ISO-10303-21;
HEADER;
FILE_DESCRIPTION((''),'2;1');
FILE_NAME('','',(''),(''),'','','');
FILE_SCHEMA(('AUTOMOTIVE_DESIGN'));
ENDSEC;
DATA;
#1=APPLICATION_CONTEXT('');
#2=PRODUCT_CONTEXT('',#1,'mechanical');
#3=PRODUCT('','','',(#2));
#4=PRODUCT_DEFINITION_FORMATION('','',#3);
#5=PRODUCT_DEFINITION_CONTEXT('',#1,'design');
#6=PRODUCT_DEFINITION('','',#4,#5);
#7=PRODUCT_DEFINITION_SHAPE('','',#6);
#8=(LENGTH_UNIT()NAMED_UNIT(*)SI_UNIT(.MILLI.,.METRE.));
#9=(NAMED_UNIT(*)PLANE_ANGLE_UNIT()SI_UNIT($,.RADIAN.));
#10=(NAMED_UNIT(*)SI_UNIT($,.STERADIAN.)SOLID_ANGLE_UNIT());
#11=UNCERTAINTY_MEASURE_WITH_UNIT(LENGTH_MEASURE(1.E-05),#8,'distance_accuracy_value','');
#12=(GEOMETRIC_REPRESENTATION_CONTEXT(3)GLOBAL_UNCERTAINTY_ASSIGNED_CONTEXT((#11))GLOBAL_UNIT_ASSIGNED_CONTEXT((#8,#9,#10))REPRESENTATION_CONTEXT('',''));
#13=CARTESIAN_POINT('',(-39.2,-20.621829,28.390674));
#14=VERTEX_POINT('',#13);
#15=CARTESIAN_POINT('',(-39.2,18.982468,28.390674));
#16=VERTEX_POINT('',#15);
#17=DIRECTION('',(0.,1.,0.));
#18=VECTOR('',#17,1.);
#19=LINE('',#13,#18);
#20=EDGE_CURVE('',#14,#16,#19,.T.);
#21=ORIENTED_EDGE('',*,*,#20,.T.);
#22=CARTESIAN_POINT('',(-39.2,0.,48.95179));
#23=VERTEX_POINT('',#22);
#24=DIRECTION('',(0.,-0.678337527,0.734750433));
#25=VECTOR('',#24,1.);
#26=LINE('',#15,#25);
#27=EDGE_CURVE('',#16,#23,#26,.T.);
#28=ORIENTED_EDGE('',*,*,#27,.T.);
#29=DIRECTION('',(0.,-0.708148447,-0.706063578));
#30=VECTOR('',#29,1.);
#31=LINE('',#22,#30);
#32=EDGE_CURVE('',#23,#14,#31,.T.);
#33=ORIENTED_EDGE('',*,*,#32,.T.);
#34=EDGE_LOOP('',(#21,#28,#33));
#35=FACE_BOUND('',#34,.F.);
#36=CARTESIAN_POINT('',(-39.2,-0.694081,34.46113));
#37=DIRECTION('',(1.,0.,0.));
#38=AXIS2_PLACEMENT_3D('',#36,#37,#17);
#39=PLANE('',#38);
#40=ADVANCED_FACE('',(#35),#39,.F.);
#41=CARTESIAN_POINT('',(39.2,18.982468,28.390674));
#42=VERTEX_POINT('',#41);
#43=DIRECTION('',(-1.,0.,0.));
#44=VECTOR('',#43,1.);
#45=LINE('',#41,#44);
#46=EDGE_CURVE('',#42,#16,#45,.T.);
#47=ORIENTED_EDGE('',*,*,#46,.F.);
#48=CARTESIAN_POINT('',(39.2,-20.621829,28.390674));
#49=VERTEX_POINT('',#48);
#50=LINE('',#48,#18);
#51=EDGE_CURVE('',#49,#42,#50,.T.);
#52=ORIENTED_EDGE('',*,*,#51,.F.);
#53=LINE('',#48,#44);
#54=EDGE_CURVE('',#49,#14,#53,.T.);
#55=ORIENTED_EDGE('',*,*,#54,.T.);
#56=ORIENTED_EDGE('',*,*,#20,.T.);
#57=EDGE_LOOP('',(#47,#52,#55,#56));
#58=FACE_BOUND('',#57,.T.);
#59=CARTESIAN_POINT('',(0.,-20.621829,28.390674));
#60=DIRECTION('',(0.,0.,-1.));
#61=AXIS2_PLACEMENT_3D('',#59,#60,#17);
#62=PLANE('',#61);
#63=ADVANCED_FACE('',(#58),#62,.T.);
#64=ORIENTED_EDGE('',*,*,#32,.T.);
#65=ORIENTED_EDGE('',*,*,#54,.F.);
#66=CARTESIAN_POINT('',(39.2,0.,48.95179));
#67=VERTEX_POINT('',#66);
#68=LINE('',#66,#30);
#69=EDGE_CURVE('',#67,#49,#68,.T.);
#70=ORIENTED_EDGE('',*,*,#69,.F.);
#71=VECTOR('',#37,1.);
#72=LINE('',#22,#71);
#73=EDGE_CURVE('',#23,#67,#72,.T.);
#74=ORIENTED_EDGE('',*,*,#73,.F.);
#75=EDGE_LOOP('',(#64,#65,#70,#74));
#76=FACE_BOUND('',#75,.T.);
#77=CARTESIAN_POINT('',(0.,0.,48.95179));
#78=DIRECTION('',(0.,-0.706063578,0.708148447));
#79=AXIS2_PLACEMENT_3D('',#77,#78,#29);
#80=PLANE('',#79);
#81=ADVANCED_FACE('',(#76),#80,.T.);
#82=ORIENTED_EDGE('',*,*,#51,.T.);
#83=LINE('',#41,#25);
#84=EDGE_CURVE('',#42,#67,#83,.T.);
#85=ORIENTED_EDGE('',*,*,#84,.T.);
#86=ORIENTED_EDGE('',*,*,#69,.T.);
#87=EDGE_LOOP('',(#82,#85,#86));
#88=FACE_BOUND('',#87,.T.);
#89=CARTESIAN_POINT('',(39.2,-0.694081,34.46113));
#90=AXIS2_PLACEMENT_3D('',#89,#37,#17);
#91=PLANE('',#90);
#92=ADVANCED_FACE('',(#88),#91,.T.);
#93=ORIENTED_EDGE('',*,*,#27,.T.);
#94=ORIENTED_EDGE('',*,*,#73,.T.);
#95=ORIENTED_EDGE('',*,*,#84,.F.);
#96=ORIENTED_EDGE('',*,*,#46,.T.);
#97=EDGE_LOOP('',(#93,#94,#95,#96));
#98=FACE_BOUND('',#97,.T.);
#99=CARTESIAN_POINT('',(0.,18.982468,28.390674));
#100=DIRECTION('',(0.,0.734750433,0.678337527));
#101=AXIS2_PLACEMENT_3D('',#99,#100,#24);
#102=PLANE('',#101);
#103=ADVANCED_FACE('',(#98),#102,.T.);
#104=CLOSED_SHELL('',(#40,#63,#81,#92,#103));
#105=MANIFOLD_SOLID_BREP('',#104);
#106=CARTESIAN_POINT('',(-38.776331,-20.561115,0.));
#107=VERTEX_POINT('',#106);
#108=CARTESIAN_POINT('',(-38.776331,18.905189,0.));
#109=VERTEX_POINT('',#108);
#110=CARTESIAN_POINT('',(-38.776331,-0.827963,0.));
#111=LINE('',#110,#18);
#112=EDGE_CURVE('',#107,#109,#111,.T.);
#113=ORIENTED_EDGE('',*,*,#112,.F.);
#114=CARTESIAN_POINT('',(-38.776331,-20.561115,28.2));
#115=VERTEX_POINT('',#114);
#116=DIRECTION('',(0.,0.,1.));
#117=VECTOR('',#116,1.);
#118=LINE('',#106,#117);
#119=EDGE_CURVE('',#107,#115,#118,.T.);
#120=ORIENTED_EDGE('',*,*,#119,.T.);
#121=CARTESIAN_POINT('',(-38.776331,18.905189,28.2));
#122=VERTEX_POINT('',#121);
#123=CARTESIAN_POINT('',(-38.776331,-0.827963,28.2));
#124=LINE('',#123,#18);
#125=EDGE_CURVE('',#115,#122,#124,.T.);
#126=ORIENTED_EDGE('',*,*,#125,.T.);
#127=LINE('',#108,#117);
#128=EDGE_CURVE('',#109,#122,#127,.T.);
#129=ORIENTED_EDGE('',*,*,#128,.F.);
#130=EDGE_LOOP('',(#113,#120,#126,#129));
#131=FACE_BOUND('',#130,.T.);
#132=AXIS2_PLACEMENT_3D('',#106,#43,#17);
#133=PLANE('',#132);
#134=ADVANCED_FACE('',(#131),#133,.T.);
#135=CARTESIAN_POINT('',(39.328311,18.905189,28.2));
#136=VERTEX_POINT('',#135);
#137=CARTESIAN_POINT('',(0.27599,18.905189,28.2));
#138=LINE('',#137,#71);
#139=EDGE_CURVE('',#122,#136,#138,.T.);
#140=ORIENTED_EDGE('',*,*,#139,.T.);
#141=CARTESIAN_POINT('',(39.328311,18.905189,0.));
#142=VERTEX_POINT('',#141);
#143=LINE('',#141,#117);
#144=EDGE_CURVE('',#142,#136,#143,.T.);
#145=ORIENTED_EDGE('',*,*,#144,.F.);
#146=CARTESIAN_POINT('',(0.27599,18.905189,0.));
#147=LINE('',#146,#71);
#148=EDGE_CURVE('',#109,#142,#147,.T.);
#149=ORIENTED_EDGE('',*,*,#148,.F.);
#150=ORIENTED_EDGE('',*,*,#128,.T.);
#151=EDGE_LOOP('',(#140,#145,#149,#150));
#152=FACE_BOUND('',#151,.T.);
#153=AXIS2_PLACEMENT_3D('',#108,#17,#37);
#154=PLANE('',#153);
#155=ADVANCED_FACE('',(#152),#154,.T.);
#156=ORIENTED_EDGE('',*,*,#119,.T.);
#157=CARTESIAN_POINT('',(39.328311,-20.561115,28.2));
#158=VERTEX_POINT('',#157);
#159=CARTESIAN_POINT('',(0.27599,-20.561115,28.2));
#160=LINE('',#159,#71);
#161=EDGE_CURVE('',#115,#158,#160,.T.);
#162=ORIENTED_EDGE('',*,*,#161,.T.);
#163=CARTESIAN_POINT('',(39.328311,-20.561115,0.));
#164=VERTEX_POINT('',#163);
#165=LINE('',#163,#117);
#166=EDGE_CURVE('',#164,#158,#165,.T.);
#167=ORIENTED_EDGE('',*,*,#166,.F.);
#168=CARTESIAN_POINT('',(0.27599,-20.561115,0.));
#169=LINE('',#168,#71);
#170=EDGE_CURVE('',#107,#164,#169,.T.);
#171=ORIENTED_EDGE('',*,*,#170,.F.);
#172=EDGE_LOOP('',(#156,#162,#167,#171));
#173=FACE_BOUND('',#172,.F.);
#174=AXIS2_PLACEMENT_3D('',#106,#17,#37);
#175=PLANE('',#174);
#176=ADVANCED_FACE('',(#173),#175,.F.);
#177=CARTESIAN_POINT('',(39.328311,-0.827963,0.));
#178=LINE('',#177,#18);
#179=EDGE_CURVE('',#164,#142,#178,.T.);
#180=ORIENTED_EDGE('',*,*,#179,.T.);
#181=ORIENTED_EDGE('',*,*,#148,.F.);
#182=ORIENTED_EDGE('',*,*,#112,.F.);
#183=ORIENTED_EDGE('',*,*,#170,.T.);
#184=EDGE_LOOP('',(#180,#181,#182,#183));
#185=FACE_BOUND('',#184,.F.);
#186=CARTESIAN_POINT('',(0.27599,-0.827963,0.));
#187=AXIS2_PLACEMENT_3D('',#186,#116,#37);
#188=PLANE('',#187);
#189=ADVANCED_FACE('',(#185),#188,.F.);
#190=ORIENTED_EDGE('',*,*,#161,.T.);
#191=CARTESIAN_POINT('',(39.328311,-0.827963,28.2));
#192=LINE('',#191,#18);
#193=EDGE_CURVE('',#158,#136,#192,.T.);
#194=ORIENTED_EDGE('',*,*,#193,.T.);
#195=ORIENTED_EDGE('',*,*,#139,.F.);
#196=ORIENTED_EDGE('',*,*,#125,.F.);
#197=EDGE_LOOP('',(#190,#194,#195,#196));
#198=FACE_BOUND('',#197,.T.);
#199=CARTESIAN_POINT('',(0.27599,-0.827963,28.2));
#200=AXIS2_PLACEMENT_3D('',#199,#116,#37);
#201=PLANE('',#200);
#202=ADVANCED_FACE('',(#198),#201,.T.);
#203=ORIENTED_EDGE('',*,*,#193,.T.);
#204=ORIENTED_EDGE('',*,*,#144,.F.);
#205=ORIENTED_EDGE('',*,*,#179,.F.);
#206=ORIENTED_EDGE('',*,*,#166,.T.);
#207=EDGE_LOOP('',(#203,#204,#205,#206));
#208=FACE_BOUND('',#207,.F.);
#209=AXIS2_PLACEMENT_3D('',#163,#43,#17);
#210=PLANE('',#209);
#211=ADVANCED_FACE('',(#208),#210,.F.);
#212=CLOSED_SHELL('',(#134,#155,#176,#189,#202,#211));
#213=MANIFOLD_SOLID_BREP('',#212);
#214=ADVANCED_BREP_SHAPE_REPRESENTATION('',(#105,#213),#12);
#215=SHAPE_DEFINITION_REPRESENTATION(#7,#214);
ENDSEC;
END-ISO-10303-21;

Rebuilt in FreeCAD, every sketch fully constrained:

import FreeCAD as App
import Part
import Sketcher

doc = App.newDocument("Part")
params = doc.addObject("Spreadsheet::Sheet", "Params")
for row, (alias, value) in enumerate([
    ("pad1_length", "28.2 mm"),
    ("pad2_length", "78.4 mm"),
], start=1):
    params.set(f"A{row}", alias)
    params.set(f"B{row}", "=" + value)
    params.setAlias(f"B{row}", alias)

body = doc.addObject("PartDesign::Body", "Body")

# Sketch on XY plane
sketch1 = body.newObject("Sketcher::SketchObject", "Sketch")
sketch1.AttachmentSupport = (doc.getObject("XY_Plane"), [""])
sketch1.MapMode = "FlatFace"
sketch1.addGeometry([
    Part.LineSegment(App.Vector(-39, 19, 0), App.Vector(-39, -21, 0)),
    Part.LineSegment(App.Vector(-39, -21, 0), App.Vector(39, -21, 0)),
    Part.LineSegment(App.Vector(39, -21, 0), App.Vector(39, 19, 0)),
    Part.LineSegment(App.Vector(39, 19, 0), App.Vector(-39, 19, 0)),
], False)
sketch1.addConstraint([
    Sketcher.Constraint("Coincident", 0, 2, 1, 1),
    Sketcher.Constraint("Coincident", 1, 2, 2, 1),
    Sketcher.Constraint("Coincident", 2, 2, 3, 1),
    Sketcher.Constraint("Coincident", 3, 2, 0, 1),
    Sketcher.Constraint("Vertical", 0),
    Sketcher.Constraint("Horizontal", 1),
    Sketcher.Constraint("Vertical", 2),
    Sketcher.Constraint("Horizontal", 3),
    Sketcher.Constraint("DistanceX", 1, 1, 1, 2, 78.104642),
    Sketcher.Constraint("DistanceY", 0, 2, 0, 1, 39.466305),
    Sketcher.Constraint("DistanceX", 0, 2, -1, 1, 38.776331),
    Sketcher.Constraint("DistanceY", -1, 1, 2, 2, 18.905189),
])
pad1 = body.newObject("PartDesign::Pad", "Pad")
pad1.Profile = sketch1
pad1.setExpression("Length", "Params.pad1_length")
body2 = doc.addObject("PartDesign::Body", "Body001")

# Sketch on YZ plane
sketch2 = body2.newObject("Sketcher::SketchObject", "Sketch001")
sketch2.AttachmentSupport = (doc.getObject("YZ_Plane001"), [""])
sketch2.MapMode = "FlatFace"
sketch2.addGeometry([
    Part.LineSegment(App.Vector(19, 28, 0), App.Vector(0, 49, 0)),
    Part.LineSegment(App.Vector(0, 49, 0), App.Vector(-21, 28, 0)),
    Part.LineSegment(App.Vector(-21, 28, 0), App.Vector(19, 28, 0)),
], False)
sketch2.addConstraint([
    Sketcher.Constraint("Coincident", 0, 2, 1, 1),
    Sketcher.Constraint("Coincident", 1, 2, 2, 1),
    Sketcher.Constraint("Coincident", 2, 2, 0, 1),
    Sketcher.Constraint("Horizontal", 2),
    Sketcher.Constraint("PointOnObject", 0, 2, -2),
    Sketcher.Constraint("Distance", 0, 27.983809),
    Sketcher.Constraint("Distance", 1, 29.120771),
    Sketcher.Constraint("DistanceX", 2, 1, 2, 2, 39.604297),
    Sketcher.Constraint("DistanceY", -1, 1, 0, 2, 48.95179),
])
pad2 = body2.newObject("PartDesign::Pad", "Pad001")
pad2.Profile = sketch2
pad2.setExpression("Length", "Params.pad2_length")
pad2.Midplane = True

doc.recompute()
